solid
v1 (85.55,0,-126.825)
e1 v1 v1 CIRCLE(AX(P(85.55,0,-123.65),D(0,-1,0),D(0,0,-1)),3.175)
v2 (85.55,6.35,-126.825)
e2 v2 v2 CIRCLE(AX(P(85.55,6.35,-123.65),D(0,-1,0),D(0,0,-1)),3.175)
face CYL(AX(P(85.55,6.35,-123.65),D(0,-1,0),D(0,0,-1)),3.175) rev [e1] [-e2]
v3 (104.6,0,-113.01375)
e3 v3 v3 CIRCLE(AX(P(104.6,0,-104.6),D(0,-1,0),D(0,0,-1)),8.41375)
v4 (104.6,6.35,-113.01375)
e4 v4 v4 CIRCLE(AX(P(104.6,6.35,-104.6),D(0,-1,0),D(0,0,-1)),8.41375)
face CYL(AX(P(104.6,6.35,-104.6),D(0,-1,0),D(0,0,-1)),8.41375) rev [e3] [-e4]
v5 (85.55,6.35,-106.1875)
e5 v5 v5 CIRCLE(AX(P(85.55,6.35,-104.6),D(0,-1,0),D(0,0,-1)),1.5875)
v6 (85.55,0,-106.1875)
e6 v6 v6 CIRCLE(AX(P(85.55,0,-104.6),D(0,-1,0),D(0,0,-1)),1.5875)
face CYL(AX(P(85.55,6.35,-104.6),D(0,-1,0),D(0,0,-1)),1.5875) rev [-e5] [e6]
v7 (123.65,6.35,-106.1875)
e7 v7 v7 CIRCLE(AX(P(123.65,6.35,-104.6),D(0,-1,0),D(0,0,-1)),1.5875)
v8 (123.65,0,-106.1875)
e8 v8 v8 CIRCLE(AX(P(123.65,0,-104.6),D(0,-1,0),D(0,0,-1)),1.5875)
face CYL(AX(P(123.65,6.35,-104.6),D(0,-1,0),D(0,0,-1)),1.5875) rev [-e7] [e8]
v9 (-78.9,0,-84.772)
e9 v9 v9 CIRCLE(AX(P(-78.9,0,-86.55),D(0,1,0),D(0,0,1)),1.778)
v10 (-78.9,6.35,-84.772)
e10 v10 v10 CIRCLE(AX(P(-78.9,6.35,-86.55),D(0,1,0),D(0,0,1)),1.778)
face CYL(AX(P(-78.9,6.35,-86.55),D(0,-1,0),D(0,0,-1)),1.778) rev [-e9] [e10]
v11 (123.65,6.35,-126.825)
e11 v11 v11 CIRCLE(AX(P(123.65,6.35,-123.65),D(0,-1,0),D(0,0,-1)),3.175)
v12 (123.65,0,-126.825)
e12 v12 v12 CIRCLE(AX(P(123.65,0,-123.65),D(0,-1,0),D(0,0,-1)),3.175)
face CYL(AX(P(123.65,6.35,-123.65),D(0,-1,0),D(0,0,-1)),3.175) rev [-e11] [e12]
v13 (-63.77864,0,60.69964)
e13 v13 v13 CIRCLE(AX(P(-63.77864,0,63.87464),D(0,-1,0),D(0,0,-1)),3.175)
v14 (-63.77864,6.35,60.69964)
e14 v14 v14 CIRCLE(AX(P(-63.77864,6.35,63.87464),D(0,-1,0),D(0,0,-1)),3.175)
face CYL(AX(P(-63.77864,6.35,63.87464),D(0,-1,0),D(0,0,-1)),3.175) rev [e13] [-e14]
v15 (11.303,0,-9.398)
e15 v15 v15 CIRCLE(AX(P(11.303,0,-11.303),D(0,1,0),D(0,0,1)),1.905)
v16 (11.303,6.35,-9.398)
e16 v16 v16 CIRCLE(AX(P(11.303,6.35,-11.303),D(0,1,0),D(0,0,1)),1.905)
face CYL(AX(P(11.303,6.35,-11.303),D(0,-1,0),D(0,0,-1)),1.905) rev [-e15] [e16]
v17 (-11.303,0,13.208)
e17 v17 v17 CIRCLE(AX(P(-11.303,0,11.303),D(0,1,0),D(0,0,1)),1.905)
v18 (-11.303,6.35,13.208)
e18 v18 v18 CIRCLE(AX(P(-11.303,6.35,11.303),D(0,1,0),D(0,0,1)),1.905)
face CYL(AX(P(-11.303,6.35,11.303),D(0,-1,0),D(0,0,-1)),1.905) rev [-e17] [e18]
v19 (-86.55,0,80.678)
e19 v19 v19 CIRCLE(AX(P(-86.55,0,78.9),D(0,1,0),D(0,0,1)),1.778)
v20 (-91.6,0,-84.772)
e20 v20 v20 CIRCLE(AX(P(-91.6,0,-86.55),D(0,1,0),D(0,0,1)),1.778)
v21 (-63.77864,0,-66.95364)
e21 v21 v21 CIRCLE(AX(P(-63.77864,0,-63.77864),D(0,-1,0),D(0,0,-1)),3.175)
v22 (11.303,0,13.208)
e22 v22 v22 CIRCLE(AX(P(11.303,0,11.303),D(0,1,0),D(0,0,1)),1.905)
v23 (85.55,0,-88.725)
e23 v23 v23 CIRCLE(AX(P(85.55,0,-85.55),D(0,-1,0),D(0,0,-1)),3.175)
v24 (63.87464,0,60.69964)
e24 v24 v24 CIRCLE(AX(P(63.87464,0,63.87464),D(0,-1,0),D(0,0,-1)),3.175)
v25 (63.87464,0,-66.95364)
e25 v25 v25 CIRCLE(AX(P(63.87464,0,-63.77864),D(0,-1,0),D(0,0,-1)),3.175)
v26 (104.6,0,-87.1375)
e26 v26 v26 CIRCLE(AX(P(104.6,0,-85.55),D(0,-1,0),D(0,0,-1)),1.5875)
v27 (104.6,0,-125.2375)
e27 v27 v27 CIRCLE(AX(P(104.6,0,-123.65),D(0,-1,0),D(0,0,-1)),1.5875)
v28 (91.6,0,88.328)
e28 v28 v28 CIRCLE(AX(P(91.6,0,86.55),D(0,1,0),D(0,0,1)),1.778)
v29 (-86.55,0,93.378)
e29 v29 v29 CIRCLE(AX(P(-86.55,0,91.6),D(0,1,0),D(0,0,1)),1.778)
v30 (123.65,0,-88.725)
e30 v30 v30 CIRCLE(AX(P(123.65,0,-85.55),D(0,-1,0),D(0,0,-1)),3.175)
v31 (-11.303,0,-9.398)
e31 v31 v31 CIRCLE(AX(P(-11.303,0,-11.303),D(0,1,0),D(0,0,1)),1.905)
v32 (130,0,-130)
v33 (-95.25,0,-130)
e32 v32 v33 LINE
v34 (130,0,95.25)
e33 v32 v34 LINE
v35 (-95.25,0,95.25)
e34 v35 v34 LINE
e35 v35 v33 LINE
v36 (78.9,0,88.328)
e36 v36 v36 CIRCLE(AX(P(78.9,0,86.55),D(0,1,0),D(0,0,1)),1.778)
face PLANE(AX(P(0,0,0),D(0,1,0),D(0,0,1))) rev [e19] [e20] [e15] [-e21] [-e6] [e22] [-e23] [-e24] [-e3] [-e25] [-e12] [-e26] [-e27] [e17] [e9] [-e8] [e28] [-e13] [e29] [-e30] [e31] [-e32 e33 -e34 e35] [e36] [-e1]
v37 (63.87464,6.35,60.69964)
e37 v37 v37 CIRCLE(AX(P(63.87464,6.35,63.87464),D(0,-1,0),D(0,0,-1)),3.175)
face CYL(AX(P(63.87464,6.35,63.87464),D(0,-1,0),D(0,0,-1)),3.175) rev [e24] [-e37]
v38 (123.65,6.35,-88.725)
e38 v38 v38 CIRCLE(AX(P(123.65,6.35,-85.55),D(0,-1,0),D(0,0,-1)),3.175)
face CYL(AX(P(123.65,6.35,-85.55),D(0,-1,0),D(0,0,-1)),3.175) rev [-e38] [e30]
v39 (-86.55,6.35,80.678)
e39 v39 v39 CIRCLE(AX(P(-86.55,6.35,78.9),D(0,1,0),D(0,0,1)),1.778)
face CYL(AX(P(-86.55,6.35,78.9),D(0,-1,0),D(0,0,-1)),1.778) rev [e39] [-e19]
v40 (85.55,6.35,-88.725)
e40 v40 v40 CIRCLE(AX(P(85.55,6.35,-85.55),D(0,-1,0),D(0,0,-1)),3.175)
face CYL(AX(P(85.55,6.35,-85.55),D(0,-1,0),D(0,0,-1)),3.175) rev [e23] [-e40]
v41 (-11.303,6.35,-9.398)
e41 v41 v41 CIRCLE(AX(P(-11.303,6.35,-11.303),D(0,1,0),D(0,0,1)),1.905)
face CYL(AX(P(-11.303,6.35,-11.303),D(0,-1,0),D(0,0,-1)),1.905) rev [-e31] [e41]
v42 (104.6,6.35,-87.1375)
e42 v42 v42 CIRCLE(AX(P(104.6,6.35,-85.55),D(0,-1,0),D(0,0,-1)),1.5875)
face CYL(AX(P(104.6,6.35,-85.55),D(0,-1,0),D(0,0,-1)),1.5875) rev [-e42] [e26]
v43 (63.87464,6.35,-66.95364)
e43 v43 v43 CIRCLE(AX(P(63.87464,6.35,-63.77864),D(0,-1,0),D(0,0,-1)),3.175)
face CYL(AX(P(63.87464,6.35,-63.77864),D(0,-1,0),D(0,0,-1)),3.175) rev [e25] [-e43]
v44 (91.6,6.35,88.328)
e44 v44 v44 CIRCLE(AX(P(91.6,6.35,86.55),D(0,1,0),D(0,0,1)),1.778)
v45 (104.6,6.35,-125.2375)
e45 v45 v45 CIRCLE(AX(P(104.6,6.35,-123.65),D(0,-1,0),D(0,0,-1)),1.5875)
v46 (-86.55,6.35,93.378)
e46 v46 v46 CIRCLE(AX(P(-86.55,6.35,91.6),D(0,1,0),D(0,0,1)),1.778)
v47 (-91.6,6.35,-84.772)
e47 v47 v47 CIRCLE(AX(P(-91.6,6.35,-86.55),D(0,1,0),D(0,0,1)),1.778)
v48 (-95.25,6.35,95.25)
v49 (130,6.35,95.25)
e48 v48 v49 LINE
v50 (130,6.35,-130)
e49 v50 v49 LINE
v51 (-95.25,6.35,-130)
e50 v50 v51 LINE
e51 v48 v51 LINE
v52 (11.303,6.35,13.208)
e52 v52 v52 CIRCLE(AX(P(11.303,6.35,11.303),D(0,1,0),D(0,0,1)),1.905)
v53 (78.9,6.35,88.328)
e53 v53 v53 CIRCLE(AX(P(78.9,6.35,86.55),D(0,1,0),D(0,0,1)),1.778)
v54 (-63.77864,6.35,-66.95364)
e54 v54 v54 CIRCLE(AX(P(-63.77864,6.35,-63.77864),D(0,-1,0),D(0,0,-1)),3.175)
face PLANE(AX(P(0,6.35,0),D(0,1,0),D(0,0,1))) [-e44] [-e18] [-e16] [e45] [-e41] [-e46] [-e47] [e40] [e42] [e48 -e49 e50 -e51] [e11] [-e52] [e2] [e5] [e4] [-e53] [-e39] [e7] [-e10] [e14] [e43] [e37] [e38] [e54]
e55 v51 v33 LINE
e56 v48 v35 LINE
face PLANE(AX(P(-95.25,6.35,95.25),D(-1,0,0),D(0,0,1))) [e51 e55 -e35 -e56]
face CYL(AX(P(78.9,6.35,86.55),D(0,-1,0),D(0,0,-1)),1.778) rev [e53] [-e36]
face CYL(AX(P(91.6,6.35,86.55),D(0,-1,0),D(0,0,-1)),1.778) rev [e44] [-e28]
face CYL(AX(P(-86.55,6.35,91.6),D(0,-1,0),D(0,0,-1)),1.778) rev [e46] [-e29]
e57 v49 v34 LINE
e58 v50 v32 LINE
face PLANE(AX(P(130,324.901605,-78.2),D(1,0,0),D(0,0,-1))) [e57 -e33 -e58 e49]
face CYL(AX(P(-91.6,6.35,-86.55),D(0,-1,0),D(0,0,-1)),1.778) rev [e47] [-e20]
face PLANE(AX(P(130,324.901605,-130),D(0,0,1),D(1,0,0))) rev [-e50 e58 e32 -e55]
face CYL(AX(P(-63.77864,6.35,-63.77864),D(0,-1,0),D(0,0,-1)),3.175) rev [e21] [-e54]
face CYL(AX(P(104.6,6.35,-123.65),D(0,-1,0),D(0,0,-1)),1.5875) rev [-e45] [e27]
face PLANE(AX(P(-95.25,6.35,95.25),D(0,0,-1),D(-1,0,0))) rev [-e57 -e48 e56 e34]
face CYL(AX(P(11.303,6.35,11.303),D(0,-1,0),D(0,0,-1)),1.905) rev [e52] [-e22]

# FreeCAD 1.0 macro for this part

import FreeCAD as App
import Part
import Sketcher
Q = App.Units.Quantity


def add_polygon(sketch, points):
    """Adds a closed chain of lines whose ends are joined by coincident constraints."""
    first, n = sketch.GeometryCount, len(points)
    for a, b in zip(points, points[1:] + points[:1]):
        sketch.addGeometry(Part.LineSegment(App.Vector(*a, 0), App.Vector(*b, 0)), False)
    for i in range(n):
        sketch.addConstraint(Sketcher.Constraint("Coincident", first + i, 2, first + (i + 1) % n, 1))

doc = App.newDocument("Part")
body = doc.addObject("PartDesign::Body", "Body")

# Sketch on XZ plane
sketch1 = body.newObject("Sketcher::SketchObject", "Sketch")
sketch1.AttachmentSupport = (doc.getObject("XZ_Plane"), [""])
sketch1.MapMode = "FlatFace"
add_polygon(sketch1, [(-95.2, -95.2), (-95.2, 95.2), (95.2, 95.2), (95.2, -95.2)])  # lines 0-3
sketch1.addGeometry(Part.Circle(App.Vector(-86.5, 91.6, 0), App.Vector(0, 0, 1), 1.8), False)  # 4
sketch1.addGeometry(Part.Circle(App.Vector(-86.5, 78.9, 0), App.Vector(0, 0, 1), 1.8), False)  # 5
sketch1.addGeometry(Part.Circle(App.Vector(-11.3, 11.3, 0), App.Vector(0, 0, 1), 1.9), False)  # 6
sketch1.addGeometry(Part.Circle(App.Vector(78.9, 86.5, 0), App.Vector(0, 0, 1), 1.8), False)  # 7
sketch1.addGeometry(Part.Circle(App.Vector(91.6, 86.5, 0), App.Vector(0, 0, 1), 1.8), False)  # 8
sketch1.addGeometry(Part.Circle(App.Vector(11.3, 11.3, 0), App.Vector(0, 0, 1), 1.9), False)  # 9
sketch1.addGeometry(Part.Circle(App.Vector(-11.3, -11.3, 0), App.Vector(0, 0, 1), 1.9), False)  # 10
sketch1.addGeometry(Part.Circle(App.Vector(-91.6, -86.5, 0), App.Vector(0, 0, 1), 1.8), False)  # 11
sketch1.addGeometry(Part.Circle(App.Vector(-78.9, -86.5, 0), App.Vector(0, 0, 1), 1.8), False)  # 12
sketch1.addGeometry(Part.Circle(App.Vector(11.3, -11.3, 0), App.Vector(0, 0, 1), 1.9), False)  # 13
sketch1.addConstraint(Sketcher.Constraint("Vertical", 0))
sketch1.addConstraint(Sketcher.Constraint("Horizontal", 1))
sketch1.addConstraint(Sketcher.Constraint("Vertical", 2))
sketch1.addConstraint(Sketcher.Constraint("Horizontal", 3))
sketch1.addConstraint(Sketcher.Constraint("Equal", 4, 5))
sketch1.addConstraint(Sketcher.Constraint("Equal", 5, 7))
sketch1.addConstraint(Sketcher.Constraint("Equal", 7, 8))
sketch1.addConstraint(Sketcher.Constraint("Equal", 6, 9))
sketch1.addConstraint(Sketcher.Constraint("Equal", 9, 10))
sketch1.addConstraint(Sketcher.Constraint("Equal", 8, 11))
sketch1.addConstraint(Sketcher.Constraint("Equal", 11, 12))
sketch1.addConstraint(Sketcher.Constraint("Equal", 10, 13))
sketch1.addConstraint(Sketcher.Constraint("Symmetric", 9, 3, 10, 3, -1, 1))
sketch1.addConstraint(Sketcher.Constraint("Symmetric", 8, 3, 11, 3, -1, 1))
sketch1.addConstraint(Sketcher.Constraint("Symmetric", 7, 3, 12, 3, -1, 1))
sketch1.addConstraint(Sketcher.Constraint("Symmetric", 6, 3, 13, 3, -1, 1))
sketch1.addConstraint(Sketcher.Constraint("Symmetric", 0, 2, 2, 2, -1, 1))
sketch1.addConstraint(Sketcher.Constraint("Symmetric", 6, 3, 9, 3, -2))
sketch1.addConstraint(Sketcher.Constraint("Horizontal", 7, 3, 8, 3))
sketch1.addConstraint(Sketcher.Constraint("Vertical", 4, 3, 5, 3))
sketch1.addConstraint(Sketcher.Constraint("Equal", 3, 0))
sketch1.addConstraint(Sketcher.Constraint("Diameter", 4, Q("0.14 in")))
sketch1.addConstraint(Sketcher.Constraint("Diameter", 6, Q("0.15 in")))
sketch1.addConstraint(Sketcher.Constraint("DistanceX", 1, 1, 1, 2, Q("7.5 in")))
sketch1.addConstraint(Sketcher.Constraint("DistanceY", 5, 3, 4, 3, Q("0.5 in")))
sketch1.addConstraint(Sketcher.Constraint("DistanceX", 7, 3, 8, 3, Q("0.5 in")))
sketch1.addConstraint(Sketcher.Constraint("DistanceX", 6, 3, 9, 3, Q("0.89 in")))
sketch1.addConstraint(Sketcher.Constraint("DistanceY", 10, 3, 6, 3, Q("0.89 in")))
sketch1.addConstraint(Sketcher.Constraint("DistanceX", 4, 3, -1, 1, Q("86.55 mm")))
sketch1.addConstraint(Sketcher.Constraint("DistanceY", -1, 1, 4, 3, Q("91.6 mm")))
sketch1.addConstraint(Sketcher.Constraint("DistanceX", -1, 1, 7, 3, Q("78.9 mm")))
sketch1.addConstraint(Sketcher.Constraint("DistanceY", -1, 1, 7, 3, Q("86.55 mm")))
pad1 = body.newObject("PartDesign::Pad", "Pad")
pad1.Profile = sketch1
pad1.Length = Q("0.25 in")
pad1.Reversed = True

# Sketch on XZ plane
sketch2 = body.newObject("Sketcher::SketchObject", "Sketch001")
sketch2.AttachmentSupport = (doc.getObject("XZ_Plane"), [""])
sketch2.MapMode = "FlatFace"
add_polygon(sketch2, [(-95, -130), (130, -130), (130, 95), (95, 95), (95, -95), (-95, -95)])  # lines 0-5
sketch2.addConstraint(Sketcher.Constraint("Horizontal", 0))
sketch2.addConstraint(Sketcher.Constraint("Vertical", 1))
sketch2.addConstraint(Sketcher.Constraint("Horizontal", 2))
sketch2.addConstraint(Sketcher.Constraint("Vertical", 3))
sketch2.addConstraint(Sketcher.Constraint("Horizontal", 4))
sketch2.addConstraint(Sketcher.Constraint("Vertical", 5))
sketch2.addConstraint(Sketcher.Constraint("Symmetric", 2, 2, 4, 2, -1, 1))
sketch2.addConstraint(Sketcher.Constraint("Equal", 0, 1))
sketch2.addConstraint(Sketcher.Constraint("Equal", 4, 3))
sketch2.addConstraint(Sketcher.Constraint("DistanceX", 4, 2, 4, 1, Q("7.5 in")))
sketch2.addConstraint(Sketcher.Constraint("DistanceX", 0, 1, 0, 2, Q("225.25 mm")))
pad2 = body.newObject("PartDesign::Pad", "Pad001")
pad2.Profile = sketch2
pad2.Length = Q("0.25 in")
pad2.Reversed = True

# Sketch on XZ plane
sketch3 = body.newObject("Sketcher::SketchObject", "Sketch002")
sketch3.AttachmentSupport = (doc.getObject("XZ_Plane"), [""])
sketch3.MapMode = "FlatFace"
sketch3.addGeometry(Part.Circle(App.Vector(-63.8, -63.8, 0), App.Vector(0, 0, 1), 3.2), False)
sketch3.addGeometry(Part.Circle(App.Vector(-63.8, 63.9, 0), App.Vector(0, 0, 1), 3.2), False)
sketch3.addGeometry(Part.Circle(App.Vector(63.9, 63.9, 0), App.Vector(0, 0, 1), 3.2), False)
sketch3.addGeometry(Part.Circle(App.Vector(63.9, -63.8, 0), App.Vector(0, 0, 1), 3.2), False)
sketch3.addConstraint(Sketcher.Constraint("Equal", 0, 1))
sketch3.addConstraint(Sketcher.Constraint("Equal", 1, 2))
sketch3.addConstraint(Sketcher.Constraint("Equal", 2, 3))
sketch3.addConstraint(Sketcher.Constraint("Horizontal", 1, 3, 2, 3))
sketch3.addConstraint(Sketcher.Constraint("Horizontal", 0, 3, 3, 3))
sketch3.addConstraint(Sketcher.Constraint("Vertical", 0, 3, 1, 3))
sketch3.addConstraint(Sketcher.Constraint("Vertical", 2, 3, 3, 3))
sketch3.addConstraint(Sketcher.Constraint("Diameter", 0, Q("0.25 in")))
sketch3.addConstraint(Sketcher.Constraint("DistanceX", 0, 3, -1, 1, Q("63.77864 mm")))
sketch3.addConstraint(Sketcher.Constraint("DistanceY", 0, 3, -1, 1, Q("63.77864 mm")))
sketch3.addConstraint(Sketcher.Constraint("DistanceY", -1, 1, 1, 3, Q("63.87464 mm")))
sketch3.addConstraint(Sketcher.Constraint("DistanceX", -1, 1, 2, 3, Q("63.87464 mm")))
pocket1 = body.newObject("PartDesign::Pocket", "Pocket")
pocket1.Profile = sketch3
pocket1.Type = "ThroughAll"

# Sketch on XZ plane
sketch4 = body.newObject("Sketcher::SketchObject", "Sketch003")
sketch4.AttachmentSupport = (doc.getObject("XZ_Plane"), [""])
sketch4.MapMode = "FlatFace"
sketch4.addGeometry(Part.Circle(App.Vector(123.7, -123.7, 0), App.Vector(0, 0, 1), 3.2), False)
sketch4.addGeometry(Part.Circle(App.Vector(85.5, -85.5, 0), App.Vector(0, 0, 1), 3.2), False)
sketch4.addGeometry(Part.Circle(App.Vector(123.7, -85.5, 0), App.Vector(0, 0, 1), 3.2), False)
sketch4.addGeometry(Part.Circle(App.Vector(85.5, -123.7, 0), App.Vector(0, 0, 1), 3.2), False)
sketch4.addConstraint(Sketcher.Constraint("Equal", 0, 1))
sketch4.addConstraint(Sketcher.Constraint("Equal", 1, 2))
sketch4.addConstraint(Sketcher.Constraint("Equal", 2, 3))
sketch4.addConstraint(Sketcher.Constraint("Horizontal", 1, 3, 2, 3))
sketch4.addConstraint(Sketcher.Constraint("Horizontal", 0, 3, 3, 3))
sketch4.addConstraint(Sketcher.Constraint("Vertical", 0, 3, 2, 3))
sketch4.addConstraint(Sketcher.Constraint("Vertical", 1, 3, 3, 3))
sketch4.addConstraint(Sketcher.Constraint("Diameter", 0, Q("0.25 in")))
sketch4.addConstraint(Sketcher.Constraint("DistanceX", 1, 3, 0, 3, Q("1.5 in")))
sketch4.addConstraint(Sketcher.Constraint("DistanceY", 0, 3, 1, 3, Q("1.5 in")))
sketch4.addConstraint(Sketcher.Constraint("DistanceX", -1, 1, 0, 3, Q("123.65 mm")))
sketch4.addConstraint(Sketcher.Constraint("DistanceY", 0, 3, -1, 1, Q("123.65 mm")))
pocket2 = body.newObject("PartDesign::Pocket", "Pocket001")
pocket2.Profile = sketch4
pocket2.Type = "ThroughAll"

# Sketch on XZ plane
sketch5 = body.newObject("Sketcher::SketchObject", "Sketch004")
sketch5.AttachmentSupport = (doc.getObject("XZ_Plane"), [""])
sketch5.MapMode = "FlatFace"
sketch5.addGeometry(Part.Circle(App.Vector(104.6, -123.7, 0), App.Vector(0, 0, 1), 1.6), False)
sketch5.addGeometry(Part.Circle(App.Vector(85.5, -104.6, 0), App.Vector(0, 0, 1), 1.6), False)
sketch5.addGeometry(Part.Circle(App.Vector(104.6, -85.5, 0), App.Vector(0, 0, 1), 1.6), False)
sketch5.addGeometry(Part.Circle(App.Vector(123.7, -104.6, 0), App.Vector(0, 0, 1), 1.6), False)
sketch5.addConstraint(Sketcher.Constraint("Equal", 0, 1))
sketch5.addConstraint(Sketcher.Constraint("Equal", 1, 2))
sketch5.addConstraint(Sketcher.Constraint("Equal", 2, 3))
sketch5.addConstraint(Sketcher.Constraint("Horizontal", 1, 3, 3, 3))
sketch5.addConstraint(Sketcher.Constraint("Vertical", 0, 3, 2, 3))
sketch5.addConstraint(Sketcher.Constraint("Diameter", 0, Q("0.125 in")))
sketch5.addConstraint(Sketcher.Constraint("DistanceY", 0, 3, 2, 3, Q("1.5 in")))
sketch5.addConstraint(Sketcher.Constraint("DistanceX", 1, 3, 3, 3, Q("1.5 in")))
sketch5.addConstraint(Sketcher.Constraint("DistanceX", 1, 3, 0, 3, Q("0.75 in")))
sketch5.addConstraint(Sketcher.Constraint("DistanceY", 0, 3, 1, 3, Q("0.75 in")))
sketch5.addConstraint(Sketcher.Constraint("DistanceX", -1, 1, 0, 3, Q("104.6 mm")))
sketch5.addConstraint(Sketcher.Constraint("DistanceY", 0, 3, -1, 1, Q("123.65 mm")))
pocket3 = body.newObject("PartDesign::Pocket", "Pocket002")
pocket3.Profile = sketch5
pocket3.Type = "ThroughAll"

# Sketch on XZ plane
sketch6 = body.newObject("Sketcher::SketchObject", "Sketch005")
sketch6.AttachmentSupport = (doc.getObject("XZ_Plane"), [""])
sketch6.MapMode = "FlatFace"
sketch6.addGeometry(Part.Circle(App.Vector(105, -105, 0), App.Vector(0, 0, 1), 8), False)
sketch6.addConstraint(Sketcher.Constraint("Diameter", 0, Q("0.6625 in")))
sketch6.addConstraint(Sketcher.Constraint("DistanceX", -1, 1, 0, 3, Q("104.6 mm")))
sketch6.addConstraint(Sketcher.Constraint("DistanceY", 0, 3, -1, 1, Q("104.6 mm")))
pocket4 = body.newObject("PartDesign::Pocket", "Pocket003")
pocket4.Profile = sketch6
pocket4.Type = "ThroughAll"

doc.recompute()
